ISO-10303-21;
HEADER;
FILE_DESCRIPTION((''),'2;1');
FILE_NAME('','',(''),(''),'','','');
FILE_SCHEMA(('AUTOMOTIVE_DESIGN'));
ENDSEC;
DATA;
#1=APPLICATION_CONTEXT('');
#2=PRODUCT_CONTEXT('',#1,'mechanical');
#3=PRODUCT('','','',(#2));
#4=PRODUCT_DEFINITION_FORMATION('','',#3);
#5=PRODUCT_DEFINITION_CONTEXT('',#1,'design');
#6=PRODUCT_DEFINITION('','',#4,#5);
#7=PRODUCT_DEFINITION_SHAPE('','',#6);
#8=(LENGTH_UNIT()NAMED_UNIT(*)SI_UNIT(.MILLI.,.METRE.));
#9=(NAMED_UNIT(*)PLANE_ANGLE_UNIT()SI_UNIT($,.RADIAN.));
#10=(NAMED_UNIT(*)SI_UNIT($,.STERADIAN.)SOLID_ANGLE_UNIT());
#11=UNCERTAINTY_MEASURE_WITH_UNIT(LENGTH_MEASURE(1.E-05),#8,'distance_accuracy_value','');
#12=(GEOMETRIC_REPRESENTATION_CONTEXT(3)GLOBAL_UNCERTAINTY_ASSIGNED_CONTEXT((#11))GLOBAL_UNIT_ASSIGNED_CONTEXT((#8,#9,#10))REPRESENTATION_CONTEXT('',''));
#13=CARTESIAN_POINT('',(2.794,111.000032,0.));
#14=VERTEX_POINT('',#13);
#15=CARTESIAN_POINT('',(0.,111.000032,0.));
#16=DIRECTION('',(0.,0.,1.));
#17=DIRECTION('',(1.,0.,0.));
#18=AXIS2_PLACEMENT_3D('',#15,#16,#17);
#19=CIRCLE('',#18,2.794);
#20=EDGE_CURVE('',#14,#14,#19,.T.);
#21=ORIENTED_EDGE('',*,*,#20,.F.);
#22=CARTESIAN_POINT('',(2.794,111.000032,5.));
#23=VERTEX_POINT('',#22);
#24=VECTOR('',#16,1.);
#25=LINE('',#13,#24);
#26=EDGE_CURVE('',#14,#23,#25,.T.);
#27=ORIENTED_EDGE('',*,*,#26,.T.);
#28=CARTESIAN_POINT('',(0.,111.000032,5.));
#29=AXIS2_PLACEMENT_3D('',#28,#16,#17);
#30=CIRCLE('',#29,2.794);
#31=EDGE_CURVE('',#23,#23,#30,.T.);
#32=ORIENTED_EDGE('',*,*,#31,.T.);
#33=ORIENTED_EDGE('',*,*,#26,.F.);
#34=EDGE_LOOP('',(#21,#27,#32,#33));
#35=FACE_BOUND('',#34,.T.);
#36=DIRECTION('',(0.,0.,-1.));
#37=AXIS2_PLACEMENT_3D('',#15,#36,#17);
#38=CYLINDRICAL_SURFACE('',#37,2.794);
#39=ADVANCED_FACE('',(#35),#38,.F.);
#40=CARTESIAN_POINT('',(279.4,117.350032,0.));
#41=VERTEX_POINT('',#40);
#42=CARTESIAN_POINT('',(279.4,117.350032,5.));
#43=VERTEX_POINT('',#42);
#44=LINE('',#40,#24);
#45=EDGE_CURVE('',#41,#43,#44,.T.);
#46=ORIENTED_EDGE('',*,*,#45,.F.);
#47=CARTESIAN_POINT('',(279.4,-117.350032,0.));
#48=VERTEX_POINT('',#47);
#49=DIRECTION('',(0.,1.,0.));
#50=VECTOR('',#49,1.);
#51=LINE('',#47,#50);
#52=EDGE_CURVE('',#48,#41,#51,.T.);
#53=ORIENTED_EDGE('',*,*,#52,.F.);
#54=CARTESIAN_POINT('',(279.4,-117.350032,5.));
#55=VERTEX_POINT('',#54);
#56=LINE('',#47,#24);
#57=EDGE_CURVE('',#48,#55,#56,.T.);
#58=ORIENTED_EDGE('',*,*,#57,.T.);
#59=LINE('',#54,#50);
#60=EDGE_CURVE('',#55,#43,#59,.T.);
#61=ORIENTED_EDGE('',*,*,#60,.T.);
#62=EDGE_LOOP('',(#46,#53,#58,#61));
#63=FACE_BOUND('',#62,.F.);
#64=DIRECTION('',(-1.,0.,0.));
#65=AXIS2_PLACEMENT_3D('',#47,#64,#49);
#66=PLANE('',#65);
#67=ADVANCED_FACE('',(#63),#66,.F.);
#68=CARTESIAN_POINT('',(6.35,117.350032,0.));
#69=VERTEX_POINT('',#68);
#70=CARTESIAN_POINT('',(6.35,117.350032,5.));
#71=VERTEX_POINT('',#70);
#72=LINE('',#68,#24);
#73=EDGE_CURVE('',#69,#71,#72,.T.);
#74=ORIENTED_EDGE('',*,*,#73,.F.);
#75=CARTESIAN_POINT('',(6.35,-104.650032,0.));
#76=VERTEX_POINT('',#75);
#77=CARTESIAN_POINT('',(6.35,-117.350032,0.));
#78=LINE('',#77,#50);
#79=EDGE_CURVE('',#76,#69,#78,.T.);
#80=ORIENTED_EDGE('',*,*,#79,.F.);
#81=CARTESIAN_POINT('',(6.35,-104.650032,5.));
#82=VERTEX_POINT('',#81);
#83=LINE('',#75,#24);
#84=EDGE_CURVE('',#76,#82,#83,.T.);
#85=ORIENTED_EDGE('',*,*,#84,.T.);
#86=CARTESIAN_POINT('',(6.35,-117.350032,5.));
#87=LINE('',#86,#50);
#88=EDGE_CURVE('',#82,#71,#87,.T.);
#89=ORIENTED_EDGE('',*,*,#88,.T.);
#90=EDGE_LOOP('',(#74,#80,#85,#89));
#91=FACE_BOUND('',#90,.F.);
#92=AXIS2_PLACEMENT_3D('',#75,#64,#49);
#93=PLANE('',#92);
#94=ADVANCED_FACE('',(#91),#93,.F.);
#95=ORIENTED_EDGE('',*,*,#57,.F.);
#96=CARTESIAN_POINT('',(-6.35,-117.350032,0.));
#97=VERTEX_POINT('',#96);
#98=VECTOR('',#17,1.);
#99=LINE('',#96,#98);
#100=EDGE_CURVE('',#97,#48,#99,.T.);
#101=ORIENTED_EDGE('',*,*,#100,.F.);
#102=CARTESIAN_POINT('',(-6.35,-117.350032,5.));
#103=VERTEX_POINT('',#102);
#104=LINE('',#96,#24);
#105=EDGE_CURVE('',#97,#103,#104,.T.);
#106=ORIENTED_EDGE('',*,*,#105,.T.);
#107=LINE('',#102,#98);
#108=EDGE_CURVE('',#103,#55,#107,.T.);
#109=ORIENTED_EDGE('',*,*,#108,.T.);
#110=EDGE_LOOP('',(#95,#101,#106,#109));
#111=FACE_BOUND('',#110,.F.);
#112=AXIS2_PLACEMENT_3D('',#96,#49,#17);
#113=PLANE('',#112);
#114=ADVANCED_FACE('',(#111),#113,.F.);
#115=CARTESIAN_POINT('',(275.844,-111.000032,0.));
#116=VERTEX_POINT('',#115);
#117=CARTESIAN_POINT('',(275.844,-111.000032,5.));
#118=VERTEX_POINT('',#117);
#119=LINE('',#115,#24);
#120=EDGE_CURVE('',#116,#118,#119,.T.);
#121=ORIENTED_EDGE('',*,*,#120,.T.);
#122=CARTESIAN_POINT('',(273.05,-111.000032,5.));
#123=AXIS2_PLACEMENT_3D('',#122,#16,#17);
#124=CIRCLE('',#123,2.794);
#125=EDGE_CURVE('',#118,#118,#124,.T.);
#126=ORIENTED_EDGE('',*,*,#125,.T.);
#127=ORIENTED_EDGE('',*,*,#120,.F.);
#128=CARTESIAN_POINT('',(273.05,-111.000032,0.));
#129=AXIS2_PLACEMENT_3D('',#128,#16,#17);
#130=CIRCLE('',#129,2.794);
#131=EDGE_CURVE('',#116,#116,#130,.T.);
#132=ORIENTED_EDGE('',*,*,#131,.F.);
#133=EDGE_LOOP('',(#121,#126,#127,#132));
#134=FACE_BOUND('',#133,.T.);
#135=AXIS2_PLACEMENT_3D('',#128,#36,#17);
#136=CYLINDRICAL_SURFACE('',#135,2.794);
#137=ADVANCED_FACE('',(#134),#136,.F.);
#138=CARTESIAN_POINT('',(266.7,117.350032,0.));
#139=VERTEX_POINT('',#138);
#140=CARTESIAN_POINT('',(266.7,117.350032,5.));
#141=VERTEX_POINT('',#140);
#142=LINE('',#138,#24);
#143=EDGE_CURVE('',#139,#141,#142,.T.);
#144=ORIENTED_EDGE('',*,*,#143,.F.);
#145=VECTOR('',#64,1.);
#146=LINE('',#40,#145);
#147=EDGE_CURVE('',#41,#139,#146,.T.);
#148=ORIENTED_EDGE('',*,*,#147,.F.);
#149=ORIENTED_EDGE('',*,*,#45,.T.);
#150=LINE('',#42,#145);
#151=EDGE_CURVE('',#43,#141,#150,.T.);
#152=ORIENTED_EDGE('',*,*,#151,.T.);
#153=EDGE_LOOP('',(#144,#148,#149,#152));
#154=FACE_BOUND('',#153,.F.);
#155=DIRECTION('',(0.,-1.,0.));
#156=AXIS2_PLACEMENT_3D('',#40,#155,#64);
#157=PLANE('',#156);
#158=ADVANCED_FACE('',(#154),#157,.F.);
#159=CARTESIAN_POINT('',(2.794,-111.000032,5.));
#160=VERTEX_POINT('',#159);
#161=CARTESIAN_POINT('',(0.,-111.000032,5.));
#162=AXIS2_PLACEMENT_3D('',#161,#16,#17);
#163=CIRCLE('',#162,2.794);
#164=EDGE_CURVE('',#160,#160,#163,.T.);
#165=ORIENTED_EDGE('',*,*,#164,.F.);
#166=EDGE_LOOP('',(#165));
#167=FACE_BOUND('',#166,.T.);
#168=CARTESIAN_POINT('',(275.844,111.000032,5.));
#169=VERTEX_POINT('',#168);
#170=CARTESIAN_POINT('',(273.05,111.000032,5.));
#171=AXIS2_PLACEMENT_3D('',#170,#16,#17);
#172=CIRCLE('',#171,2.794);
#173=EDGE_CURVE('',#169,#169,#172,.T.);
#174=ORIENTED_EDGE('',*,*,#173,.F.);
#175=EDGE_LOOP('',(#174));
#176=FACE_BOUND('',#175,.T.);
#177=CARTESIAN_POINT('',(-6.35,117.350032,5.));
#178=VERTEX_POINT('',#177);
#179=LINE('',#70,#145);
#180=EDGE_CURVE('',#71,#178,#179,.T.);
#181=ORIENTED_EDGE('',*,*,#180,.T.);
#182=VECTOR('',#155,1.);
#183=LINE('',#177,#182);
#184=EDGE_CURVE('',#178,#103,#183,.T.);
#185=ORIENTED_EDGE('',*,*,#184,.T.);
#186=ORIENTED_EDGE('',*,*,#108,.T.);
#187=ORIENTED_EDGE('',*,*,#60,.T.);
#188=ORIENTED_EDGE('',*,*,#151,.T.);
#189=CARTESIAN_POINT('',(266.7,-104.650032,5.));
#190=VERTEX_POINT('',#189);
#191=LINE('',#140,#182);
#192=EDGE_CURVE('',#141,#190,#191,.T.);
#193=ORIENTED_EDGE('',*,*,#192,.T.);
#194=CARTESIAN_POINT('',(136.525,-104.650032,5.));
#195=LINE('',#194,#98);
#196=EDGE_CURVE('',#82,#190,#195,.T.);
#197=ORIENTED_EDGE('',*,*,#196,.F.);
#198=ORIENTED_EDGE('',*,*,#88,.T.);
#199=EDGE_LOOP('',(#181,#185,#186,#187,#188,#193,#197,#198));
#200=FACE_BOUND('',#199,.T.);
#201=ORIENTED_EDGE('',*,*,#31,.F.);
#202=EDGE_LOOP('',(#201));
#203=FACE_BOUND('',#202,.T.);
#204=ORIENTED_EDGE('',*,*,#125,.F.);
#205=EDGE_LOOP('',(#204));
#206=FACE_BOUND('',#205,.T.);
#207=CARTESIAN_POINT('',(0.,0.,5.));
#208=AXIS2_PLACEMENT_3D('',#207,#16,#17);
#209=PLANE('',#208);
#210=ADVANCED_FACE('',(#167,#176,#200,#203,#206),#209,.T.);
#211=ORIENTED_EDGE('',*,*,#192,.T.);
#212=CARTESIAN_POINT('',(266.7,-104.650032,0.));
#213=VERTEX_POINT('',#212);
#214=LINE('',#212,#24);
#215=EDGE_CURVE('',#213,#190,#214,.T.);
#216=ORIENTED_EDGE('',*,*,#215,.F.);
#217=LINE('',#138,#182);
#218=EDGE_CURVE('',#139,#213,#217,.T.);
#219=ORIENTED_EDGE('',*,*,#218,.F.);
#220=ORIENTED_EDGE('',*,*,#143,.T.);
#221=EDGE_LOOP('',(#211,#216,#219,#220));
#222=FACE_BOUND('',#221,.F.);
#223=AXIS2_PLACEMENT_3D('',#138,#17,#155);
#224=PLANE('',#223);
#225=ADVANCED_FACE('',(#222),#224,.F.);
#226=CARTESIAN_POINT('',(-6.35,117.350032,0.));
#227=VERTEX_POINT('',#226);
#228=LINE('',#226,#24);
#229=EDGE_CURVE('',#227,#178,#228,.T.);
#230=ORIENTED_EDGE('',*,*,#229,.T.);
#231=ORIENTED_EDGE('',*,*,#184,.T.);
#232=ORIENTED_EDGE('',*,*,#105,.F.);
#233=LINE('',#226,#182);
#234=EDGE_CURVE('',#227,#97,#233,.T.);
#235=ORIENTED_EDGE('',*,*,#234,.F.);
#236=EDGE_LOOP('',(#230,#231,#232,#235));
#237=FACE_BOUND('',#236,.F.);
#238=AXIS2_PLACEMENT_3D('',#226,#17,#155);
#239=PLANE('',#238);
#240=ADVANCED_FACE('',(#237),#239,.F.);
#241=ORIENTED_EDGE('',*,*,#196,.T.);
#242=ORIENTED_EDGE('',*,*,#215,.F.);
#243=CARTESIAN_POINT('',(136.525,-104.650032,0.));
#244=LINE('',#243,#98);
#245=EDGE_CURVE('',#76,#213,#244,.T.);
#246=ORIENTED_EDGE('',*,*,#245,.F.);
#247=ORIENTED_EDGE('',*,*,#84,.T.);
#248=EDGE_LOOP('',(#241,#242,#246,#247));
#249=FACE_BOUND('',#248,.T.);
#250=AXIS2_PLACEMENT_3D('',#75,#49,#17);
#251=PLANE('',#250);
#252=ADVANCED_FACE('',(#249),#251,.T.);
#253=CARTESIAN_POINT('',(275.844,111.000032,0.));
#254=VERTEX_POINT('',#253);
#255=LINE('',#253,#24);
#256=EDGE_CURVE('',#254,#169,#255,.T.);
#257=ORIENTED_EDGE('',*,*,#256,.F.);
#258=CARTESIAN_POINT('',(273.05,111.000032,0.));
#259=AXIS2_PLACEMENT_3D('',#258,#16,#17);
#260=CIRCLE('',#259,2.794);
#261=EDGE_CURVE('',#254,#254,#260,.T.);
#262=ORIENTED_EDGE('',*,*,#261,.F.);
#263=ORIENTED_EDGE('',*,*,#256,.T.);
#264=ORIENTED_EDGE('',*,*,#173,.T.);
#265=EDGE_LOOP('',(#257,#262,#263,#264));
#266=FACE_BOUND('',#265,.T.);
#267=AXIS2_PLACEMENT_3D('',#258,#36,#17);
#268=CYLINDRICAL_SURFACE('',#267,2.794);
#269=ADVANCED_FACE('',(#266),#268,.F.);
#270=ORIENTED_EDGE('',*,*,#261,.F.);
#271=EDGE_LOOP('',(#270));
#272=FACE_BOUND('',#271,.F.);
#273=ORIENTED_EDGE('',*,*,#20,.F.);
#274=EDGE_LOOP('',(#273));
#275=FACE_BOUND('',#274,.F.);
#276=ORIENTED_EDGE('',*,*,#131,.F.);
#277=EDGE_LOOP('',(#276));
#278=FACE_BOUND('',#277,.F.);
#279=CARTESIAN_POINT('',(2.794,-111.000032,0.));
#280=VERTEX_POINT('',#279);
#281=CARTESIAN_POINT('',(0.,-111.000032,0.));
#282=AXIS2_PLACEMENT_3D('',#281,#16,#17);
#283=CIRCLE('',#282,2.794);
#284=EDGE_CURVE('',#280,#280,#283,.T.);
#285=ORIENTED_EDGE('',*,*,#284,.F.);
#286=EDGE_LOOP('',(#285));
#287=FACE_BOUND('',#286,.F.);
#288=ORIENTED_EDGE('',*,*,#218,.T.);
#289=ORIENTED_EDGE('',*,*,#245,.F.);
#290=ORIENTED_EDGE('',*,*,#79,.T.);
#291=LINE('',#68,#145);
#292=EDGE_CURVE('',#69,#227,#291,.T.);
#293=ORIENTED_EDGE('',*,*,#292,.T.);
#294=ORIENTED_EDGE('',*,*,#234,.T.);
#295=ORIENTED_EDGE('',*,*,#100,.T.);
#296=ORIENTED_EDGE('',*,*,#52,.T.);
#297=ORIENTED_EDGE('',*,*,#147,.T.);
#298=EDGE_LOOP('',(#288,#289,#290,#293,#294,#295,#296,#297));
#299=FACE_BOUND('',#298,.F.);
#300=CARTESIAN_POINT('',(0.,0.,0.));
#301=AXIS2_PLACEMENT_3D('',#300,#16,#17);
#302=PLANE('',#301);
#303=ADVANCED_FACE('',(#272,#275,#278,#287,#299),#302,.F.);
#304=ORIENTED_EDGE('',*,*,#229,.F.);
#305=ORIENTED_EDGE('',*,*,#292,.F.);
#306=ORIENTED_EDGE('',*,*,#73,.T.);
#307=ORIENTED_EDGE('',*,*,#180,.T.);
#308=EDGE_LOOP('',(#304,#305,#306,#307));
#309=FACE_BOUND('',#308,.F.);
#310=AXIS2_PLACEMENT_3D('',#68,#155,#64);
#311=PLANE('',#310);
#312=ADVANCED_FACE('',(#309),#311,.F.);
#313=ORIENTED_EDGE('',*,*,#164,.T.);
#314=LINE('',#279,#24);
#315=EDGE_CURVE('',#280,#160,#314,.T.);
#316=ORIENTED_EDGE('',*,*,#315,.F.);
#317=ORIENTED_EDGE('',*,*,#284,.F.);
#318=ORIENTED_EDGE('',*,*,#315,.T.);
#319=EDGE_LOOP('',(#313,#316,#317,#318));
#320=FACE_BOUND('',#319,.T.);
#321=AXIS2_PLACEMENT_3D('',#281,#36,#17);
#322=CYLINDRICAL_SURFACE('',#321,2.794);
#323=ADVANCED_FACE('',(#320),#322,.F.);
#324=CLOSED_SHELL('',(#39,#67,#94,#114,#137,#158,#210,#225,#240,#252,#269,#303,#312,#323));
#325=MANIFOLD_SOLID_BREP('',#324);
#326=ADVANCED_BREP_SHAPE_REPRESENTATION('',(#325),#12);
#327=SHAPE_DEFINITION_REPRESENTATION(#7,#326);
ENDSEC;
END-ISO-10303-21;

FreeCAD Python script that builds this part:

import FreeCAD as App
import Part
import Sketcher
from FreeCAD import Vector
Q = App.Units.Quantity


def add_polygon(sketch, points):
    """Adds a closed chain of lines whose ends are joined by coincident constraints."""
    first, n = sketch.GeometryCount, len(points)
    for a, b in zip(points, points[1:] + points[:1]):
        sketch.addGeometry(Part.LineSegment(App.Vector(*a, 0), App.Vector(*b, 0)), False)
    for i in range(n):
        sketch.addConstraint(Sketcher.Constraint("Coincident", first + i, 2, first + (i + 1) % n, 1))

doc = App.newDocument("Part")
body = doc.addObject("PartDesign::Body", "Body")

sketch1 = body.newObject("Sketcher::SketchObject", "Sketch")
sketch1.AttachmentSupport = (doc.getObject("XY_Plane"), [""])
sketch1.MapMode = "FlatFace"
add_polygon(sketch1, [(6.3, 117.4), (-6.3, 117.4), (-6.3, -117.4), (279.4, -117.4), (279.4, 117.4), (266.7, 117.4), (266.7, -104.7), (6.3, -104.7)])
sketch1.addGeometry(Part.Circle(Vector(0, -111, 0), Vector(0, 0, 1), 2.8), False)
sketch1.addGeometry(Part.Circle(Vector(0, 111, 0), Vector(0, 0, 1), 2.8), False)
sketch1.addGeometry(Part.Circle(Vector(273.1, 111, 0), Vector(0, 0, 1), 2.8), False)
sketch1.addGeometry(Part.Circle(Vector(273.1, -111, 0), Vector(0, 0, 1), 2.8), False)
sketch1.addConstraint([
    Sketcher.Constraint("Horizontal", 0),
    Sketcher.Constraint("Vertical", 1),
    Sketcher.Constraint("Horizontal", 2),
    Sketcher.Constraint("Vertical", 3),
    Sketcher.Constraint("Horizontal", 4),
    Sketcher.Constraint("Vertical", 5),
    Sketcher.Constraint("Horizontal", 6),
    Sketcher.Constraint("Vertical", 7),
    Sketcher.Constraint("Equal", 8, 9),
    Sketcher.Constraint("Equal", 9, 10),
    Sketcher.Constraint("Equal", 10, 11),
    Sketcher.Constraint("Symmetric", 8, 3, 9, 3, -1, 1),
    Sketcher.Constraint("Symmetric", 1, 2, 7, 2, -1, 1),
    Sketcher.Constraint("Symmetric", 10, 3, 11, 3, -1),
    Sketcher.Constraint("PointOnObject", 8, 3, -2),
    Sketcher.Constraint("Horizontal", 9, 3, 10, 3),
    Sketcher.Constraint("Horizontal", 0, 2, 3, 2),
    Sketcher.Constraint("Equal", 0, 4),
    Sketcher.Constraint("Diameter", 8, Q("0.22 in")),
    Sketcher.Constraint("DistanceX", 0, 2, 0, 1, Q("0.5 in")),
    Sketcher.Constraint("DistanceX", -1, 1, 2, 2, Q("11 in")),
    Sketcher.Constraint("DistanceX", 0, 2, 10, 3, Q("11 in")),
    Sketcher.Constraint("DistanceY", 2, 2, 5, 2, Q("0.5 in")),
    Sketcher.Constraint("DistanceY", 9, 3, 0, 2, Q("0.25 in")),
    Sketcher.Constraint("DistanceY", 1, 2, 1, 1, Q("234.700064 mm")),
])
pad1 = body.newObject("PartDesign::Pad", "Pad")
pad1.Profile = sketch1
pad1.Length = 5

doc.recompute()
